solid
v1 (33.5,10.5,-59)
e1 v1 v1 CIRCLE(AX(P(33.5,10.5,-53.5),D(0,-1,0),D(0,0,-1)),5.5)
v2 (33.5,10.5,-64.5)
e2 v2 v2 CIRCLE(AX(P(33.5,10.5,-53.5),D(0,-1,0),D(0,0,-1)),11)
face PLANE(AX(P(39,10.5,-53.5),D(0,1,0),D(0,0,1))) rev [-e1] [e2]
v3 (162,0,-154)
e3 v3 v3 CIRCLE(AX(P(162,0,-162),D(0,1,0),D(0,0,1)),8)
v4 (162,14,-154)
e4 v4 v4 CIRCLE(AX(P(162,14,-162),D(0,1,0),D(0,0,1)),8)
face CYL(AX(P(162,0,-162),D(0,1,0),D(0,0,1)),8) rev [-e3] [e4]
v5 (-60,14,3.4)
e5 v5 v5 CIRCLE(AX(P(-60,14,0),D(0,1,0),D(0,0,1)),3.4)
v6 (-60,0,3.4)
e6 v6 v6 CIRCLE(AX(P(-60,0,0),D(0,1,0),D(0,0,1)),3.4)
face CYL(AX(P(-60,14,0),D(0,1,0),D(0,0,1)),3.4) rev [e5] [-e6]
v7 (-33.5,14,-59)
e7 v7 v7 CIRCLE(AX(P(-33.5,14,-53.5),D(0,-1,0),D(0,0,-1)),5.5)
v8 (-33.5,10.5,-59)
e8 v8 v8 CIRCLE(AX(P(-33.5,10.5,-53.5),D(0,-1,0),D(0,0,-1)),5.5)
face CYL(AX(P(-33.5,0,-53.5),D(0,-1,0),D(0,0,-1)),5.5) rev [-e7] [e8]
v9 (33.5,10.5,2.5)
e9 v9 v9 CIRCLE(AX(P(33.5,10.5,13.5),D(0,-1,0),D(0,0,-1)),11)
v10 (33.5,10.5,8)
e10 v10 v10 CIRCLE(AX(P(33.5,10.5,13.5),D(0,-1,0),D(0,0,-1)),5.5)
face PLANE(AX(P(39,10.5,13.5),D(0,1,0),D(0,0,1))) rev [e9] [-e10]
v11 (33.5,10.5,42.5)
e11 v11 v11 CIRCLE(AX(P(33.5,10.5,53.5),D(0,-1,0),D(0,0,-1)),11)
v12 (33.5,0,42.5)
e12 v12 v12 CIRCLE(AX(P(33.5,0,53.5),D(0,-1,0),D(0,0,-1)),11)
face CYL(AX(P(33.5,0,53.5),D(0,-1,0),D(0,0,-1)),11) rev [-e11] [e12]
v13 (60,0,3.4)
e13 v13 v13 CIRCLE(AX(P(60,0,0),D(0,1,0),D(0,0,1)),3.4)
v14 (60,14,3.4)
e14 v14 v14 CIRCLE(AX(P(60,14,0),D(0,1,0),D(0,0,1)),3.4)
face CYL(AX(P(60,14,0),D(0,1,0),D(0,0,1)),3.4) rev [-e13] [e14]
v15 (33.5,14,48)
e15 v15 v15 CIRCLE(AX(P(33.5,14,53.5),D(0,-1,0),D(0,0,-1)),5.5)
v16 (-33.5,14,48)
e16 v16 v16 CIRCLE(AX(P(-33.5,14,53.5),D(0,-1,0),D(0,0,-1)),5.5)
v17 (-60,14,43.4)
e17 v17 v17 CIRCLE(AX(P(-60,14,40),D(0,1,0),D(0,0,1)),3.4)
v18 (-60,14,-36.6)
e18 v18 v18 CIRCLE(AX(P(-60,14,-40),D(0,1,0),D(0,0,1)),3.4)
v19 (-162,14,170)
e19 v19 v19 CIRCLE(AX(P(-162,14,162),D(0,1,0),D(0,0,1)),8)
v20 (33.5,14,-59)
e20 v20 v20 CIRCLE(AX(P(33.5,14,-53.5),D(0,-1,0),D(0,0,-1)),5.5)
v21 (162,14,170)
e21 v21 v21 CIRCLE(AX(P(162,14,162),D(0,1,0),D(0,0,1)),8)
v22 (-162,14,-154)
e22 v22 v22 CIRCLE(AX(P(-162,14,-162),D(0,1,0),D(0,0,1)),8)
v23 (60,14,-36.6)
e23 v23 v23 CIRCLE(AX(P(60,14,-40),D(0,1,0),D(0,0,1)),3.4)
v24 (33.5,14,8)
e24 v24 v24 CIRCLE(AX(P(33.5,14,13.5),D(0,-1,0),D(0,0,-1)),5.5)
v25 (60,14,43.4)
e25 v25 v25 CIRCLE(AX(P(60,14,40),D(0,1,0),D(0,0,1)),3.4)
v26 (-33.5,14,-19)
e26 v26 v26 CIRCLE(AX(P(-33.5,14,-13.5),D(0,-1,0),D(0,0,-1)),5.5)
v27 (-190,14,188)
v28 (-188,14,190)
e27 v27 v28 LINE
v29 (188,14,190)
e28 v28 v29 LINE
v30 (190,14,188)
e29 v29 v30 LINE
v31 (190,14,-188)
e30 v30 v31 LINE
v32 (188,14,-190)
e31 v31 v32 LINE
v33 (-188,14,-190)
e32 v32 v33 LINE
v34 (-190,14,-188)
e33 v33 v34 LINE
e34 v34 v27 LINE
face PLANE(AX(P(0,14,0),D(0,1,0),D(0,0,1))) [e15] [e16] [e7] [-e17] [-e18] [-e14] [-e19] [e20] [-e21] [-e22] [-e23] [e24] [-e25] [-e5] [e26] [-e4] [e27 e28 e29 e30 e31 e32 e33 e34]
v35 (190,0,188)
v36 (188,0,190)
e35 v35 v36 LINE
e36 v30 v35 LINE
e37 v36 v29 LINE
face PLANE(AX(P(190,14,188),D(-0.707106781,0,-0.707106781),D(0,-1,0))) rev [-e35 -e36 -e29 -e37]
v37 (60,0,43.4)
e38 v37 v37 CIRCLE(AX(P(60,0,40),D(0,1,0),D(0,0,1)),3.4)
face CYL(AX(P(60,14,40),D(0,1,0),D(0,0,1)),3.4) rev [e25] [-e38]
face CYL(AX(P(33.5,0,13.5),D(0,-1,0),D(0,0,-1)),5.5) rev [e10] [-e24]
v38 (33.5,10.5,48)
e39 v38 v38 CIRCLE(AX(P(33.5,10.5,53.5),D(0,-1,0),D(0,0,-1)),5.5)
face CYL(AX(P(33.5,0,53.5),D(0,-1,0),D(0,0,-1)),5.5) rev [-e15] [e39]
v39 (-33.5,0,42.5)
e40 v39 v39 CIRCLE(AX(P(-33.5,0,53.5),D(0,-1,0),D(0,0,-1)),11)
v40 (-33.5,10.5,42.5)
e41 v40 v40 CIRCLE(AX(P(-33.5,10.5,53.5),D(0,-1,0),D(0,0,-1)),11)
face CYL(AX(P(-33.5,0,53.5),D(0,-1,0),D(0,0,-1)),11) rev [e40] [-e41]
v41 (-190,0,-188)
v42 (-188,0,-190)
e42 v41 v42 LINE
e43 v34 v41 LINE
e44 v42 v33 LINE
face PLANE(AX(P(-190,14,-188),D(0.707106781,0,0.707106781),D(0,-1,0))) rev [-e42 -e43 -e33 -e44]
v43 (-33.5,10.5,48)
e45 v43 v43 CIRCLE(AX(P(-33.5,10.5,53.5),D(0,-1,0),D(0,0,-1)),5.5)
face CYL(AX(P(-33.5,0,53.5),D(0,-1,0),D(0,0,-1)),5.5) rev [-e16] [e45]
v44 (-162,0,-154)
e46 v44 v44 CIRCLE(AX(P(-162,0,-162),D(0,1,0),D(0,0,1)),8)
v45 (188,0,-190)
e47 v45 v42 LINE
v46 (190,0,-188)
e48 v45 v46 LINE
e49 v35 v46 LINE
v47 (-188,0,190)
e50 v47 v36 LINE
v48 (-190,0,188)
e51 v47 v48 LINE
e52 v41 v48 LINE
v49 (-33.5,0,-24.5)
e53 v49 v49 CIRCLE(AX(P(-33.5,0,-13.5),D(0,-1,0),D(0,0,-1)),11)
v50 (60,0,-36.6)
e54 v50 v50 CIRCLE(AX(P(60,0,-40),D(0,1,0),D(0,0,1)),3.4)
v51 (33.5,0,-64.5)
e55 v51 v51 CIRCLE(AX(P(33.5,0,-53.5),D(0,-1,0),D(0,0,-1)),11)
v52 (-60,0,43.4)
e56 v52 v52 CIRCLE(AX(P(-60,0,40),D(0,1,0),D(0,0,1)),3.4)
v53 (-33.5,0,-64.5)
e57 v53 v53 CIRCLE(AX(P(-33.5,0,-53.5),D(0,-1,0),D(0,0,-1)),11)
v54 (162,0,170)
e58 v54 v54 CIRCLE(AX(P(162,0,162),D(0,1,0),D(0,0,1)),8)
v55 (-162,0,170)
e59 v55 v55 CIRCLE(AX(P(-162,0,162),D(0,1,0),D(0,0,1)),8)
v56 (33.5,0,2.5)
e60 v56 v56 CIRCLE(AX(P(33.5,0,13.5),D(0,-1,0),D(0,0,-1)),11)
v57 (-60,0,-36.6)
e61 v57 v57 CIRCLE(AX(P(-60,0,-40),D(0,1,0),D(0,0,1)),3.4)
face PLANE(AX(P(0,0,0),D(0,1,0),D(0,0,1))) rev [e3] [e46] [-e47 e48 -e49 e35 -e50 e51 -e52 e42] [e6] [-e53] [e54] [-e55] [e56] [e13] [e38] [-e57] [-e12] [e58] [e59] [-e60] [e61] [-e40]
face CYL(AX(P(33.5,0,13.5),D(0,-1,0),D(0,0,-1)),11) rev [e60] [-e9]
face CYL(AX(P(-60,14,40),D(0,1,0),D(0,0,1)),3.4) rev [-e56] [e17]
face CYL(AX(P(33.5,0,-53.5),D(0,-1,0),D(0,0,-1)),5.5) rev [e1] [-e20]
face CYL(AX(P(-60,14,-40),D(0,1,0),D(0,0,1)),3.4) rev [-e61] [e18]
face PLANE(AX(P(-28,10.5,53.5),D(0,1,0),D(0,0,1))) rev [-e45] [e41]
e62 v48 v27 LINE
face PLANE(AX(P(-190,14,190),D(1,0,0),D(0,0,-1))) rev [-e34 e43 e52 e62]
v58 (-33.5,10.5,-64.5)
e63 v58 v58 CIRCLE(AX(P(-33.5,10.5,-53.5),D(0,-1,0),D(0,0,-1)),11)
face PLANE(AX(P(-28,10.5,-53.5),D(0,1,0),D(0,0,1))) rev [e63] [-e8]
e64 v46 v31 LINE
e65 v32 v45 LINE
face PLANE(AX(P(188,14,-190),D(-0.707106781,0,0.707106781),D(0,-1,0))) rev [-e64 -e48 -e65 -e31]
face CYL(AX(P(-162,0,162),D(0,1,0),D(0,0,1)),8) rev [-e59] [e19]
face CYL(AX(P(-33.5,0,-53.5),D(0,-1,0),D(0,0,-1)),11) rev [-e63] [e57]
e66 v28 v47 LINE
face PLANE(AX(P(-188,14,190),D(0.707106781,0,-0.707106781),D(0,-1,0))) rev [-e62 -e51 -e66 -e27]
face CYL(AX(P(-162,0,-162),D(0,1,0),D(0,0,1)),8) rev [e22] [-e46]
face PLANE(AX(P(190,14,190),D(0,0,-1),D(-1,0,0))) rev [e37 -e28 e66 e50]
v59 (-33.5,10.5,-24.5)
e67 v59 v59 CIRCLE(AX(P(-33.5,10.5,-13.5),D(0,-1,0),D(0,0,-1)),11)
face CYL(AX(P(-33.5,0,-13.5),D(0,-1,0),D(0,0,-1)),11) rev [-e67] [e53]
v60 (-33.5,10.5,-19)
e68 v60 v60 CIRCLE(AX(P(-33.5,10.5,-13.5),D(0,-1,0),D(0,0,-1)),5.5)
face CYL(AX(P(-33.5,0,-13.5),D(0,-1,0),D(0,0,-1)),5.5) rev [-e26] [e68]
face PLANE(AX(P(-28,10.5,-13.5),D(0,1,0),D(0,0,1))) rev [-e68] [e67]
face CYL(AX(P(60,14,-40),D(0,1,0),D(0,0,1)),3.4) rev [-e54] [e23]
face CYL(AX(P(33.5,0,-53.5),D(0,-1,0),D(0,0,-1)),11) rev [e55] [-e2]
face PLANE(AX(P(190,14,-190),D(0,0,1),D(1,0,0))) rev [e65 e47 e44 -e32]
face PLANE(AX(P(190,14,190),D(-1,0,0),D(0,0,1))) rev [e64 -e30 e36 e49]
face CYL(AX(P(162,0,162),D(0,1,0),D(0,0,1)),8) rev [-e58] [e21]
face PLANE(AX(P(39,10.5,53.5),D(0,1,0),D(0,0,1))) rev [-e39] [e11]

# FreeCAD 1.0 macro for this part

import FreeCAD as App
import Part
import Sketcher


def edges_at(feature, points):
    """Names of the edges that pass closest to the given points."""
    edges = feature.Shape.Edges
    near = lambda p: min(range(len(edges)), key=lambda i: edges[i].distToShape(Part.Vertex(*p))[0])
    return sorted({f"Edge{near(p) + 1}" for p in points})


def add_polygon(sketch, points):
    """Adds a closed chain of lines whose ends are joined by coincident constraints."""
    first, n = sketch.GeometryCount, len(points)
    for a, b in zip(points, points[1:] + points[:1]):
        sketch.addGeometry(Part.LineSegment(App.Vector(*a, 0), App.Vector(*b, 0)), False)
    for i in range(n):
        sketch.addConstraint(Sketcher.Constraint("Coincident", first + i, 2, first + (i + 1) % n, 1))

doc = App.newDocument("Part")
body = doc.addObject("PartDesign::Body", "Body")

# Sketch on XZ plane
sketch1 = doc.addObject("Sketcher::SketchObject", "Sketch")
body.addObject(sketch1)
sketch1.AttachmentSupport = (doc.XZ_Plane, [""])
sketch1.MapMode = "FlatFace"
add_polygon(sketch1, [(-190, -190), (-190, 190), (190, 190), (190, -190)])  # lines 0-3
sketch1.addConstraint([
    Sketcher.Constraint("Vertical", 0),
    Sketcher.Constraint("Horizontal", 1),
    Sketcher.Constraint("Vertical", 2),
    Sketcher.Constraint("Horizontal", 3),
    Sketcher.Constraint("Symmetric", 0, 2, 2, 2, -1, 1),
    Sketcher.Constraint("Equal", 3, 0),
    Sketcher.Constraint("DistanceX", 1, 1, 1, 2, 380.0),
])
pad1 = doc.addObject("PartDesign::Pad", "Pad")
body.addObject(pad1)
pad1.Profile = sketch1
pad1.Length = 14
pad1.Reversed = True
doc.recompute()

chamfer = doc.addObject("PartDesign::Chamfer", "Chamfer")
body.addObject(chamfer)
chamfer.Base = (pad1, edges_at(pad1, [
    (-190, 7, -190),
    (190, 7, -190),
    (190, 7, 190),
    (-190, 7, 190),
]))
chamfer.Size = 2

# Sketch on XZ plane
sketch2 = doc.addObject("Sketcher::SketchObject", "Sketch001")
body.addObject(sketch2)
sketch2.AttachmentSupport = (doc.XZ_Plane, [""])
sketch2.MapMode = "FlatFace"
sketch2.AttachmentOffset = App.Placement(App.Vector(0, 0, -14), App.Rotation())
sketch2.addGeometry([
    Part.Circle(App.Vector(60, -40, 0), App.Vector(0, 0, 1), 3.4),
    Part.Circle(App.Vector(60, 0, 0), App.Vector(0, 0, 1), 3.4),
    Part.Circle(App.Vector(60, 40, 0), App.Vector(0, 0, 1), 3.4),
], False)
sketch2.addConstraint([
    Sketcher.Constraint("Equal", 0, 1),
    Sketcher.Constraint("Equal", 1, 2),
    Sketcher.Constraint("Symmetric", 0, 3, 2, 3, -1),
    Sketcher.Constraint("PointOnObject", 1, 3, -1),
    Sketcher.Constraint("Vertical", 0, 3, 1, 3),
    Sketcher.Constraint("Diameter", 0, 6.8),
    Sketcher.Constraint("DistanceX", -1, 1, 0, 3, 60.0),
    Sketcher.Constraint("DistanceY", 0, 3, -1, 1, 40.0),
])
doc.recompute()
hole = doc.addObject("PartDesign::Hole", "Hole")
body.addObject(hole)
hole.Profile = sketch2
hole.ThreadType = "None"
hole.Diameter = 6.8
hole.DepthType = "ThroughAll"
hole.Reversed = True
doc.recompute()

mirrored = doc.addObject("PartDesign::Mirrored", "Mirrored")
body.addObject(mirrored)
mirrored.Originals = [hole]
mirrored.MirrorPlane = (doc.YZ_Plane, [""])
body.Tip = mirrored

# Sketch on XZ plane
sketch3 = doc.addObject("Sketcher::SketchObject", "Sketch002")
body.addObject(sketch3)
sketch3.AttachmentSupport = (doc.XZ_Plane, [""])
sketch3.MapMode = "FlatFace"
sketch3.addGeometry([
    Part.Circle(App.Vector(-34, -54, 0), App.Vector(0, 0, 1), 6),  # 0
    Part.Circle(App.Vector(34, 14, 0), App.Vector(0, 0, 1), 6),  # 1
    Part.Circle(App.Vector(-34, 54, 0), App.Vector(0, 0, 1), 6),  # 2
    Part.Circle(App.Vector(34, -54, 0), App.Vector(0, 0, 1), 6),  # 3
    Part.Circle(App.Vector(34, 54, 0), App.Vector(0, 0, 1), 6),  # 4
    Part.Circle(App.Vector(-34, -14, 0), App.Vector(0, 0, 1), 6),  # 5
], False)
sketch3.addConstraint([
    Sketcher.Constraint("Equal", 0, 1),
    Sketcher.Constraint("Equal", 1, 2),
    Sketcher.Constraint("Equal", 2, 3),
    Sketcher.Constraint("Equal", 3, 4),
    Sketcher.Constraint("Equal", 4, 5),
    Sketcher.Constraint("Symmetric", 2, 3, 3, 3, -1, 1),
    Sketcher.Constraint("Symmetric", 0, 3, 4, 3, -1, 1),
    Sketcher.Constraint("Symmetric", 1, 3, 5, 3, -1, 1),
    Sketcher.Constraint("Symmetric", 0, 3, 3, 3, -2),
    Sketcher.Constraint("Vertical", 1, 3, 3, 3),
    Sketcher.Constraint("Diameter", 0, 11.0),
    Sketcher.Constraint("DistanceX", 0, 3, 1, 3, 67.0),
    Sketcher.Constraint("DistanceY", 0, 3, 1, 3, 67.0),
    Sketcher.Constraint("DistanceY", 1, 3, 2, 3, 40.0),
])
doc.recompute()
hole2 = doc.addObject("PartDesign::Hole", "Hole001")
body.addObject(hole2)
hole2.Profile = sketch3
hole2.ThreadType = "None"
hole2.Diameter = 11
hole2.DepthType = "ThroughAll"
hole2.HoleCutType = "Counterbore"
hole2.HoleCutDiameter = 22
hole2.HoleCutDepth = 10.5

# Sketch on XZ plane
sketch4 = doc.addObject("Sketcher::SketchObject", "Sketch003")
body.addObject(sketch4)
sketch4.AttachmentSupport = (doc.XZ_Plane, [""])
sketch4.MapMode = "FlatFace"
sketch4.AttachmentOffset = App.Placement(App.Vector(0, 0, -14), App.Rotation())
sketch4.addGeometry([
    Part.Circle(App.Vector(-162, -162, 0), App.Vector(0, 0, 1), 8),
    Part.Circle(App.Vector(162, -162, 0), App.Vector(0, 0, 1), 8),
    Part.Circle(App.Vector(-162, 162, 0), App.Vector(0, 0, 1), 8),
    Part.Circle(App.Vector(162, 162, 0), App.Vector(0, 0, 1), 8),
], False)
sketch4.addConstraint([
    Sketcher.Constraint("Equal", 0, 1),
    Sketcher.Constraint("Equal", 1, 2),
    Sketcher.Constraint("Equal", 2, 3),
    Sketcher.Constraint("Symmetric", 1, 3, 2, 3, -1, 1),
    Sketcher.Constraint("Symmetric", 0, 3, 3, 3, -1, 1),
    Sketcher.Constraint("Symmetric", 0, 3, 1, 3, -2),
    Sketcher.Constraint("Diameter", 0, 16.0),
    Sketcher.Constraint("DistanceX", 0, 3, -1, 1, 162.0),
    Sketcher.Constraint("DistanceY", 0, 3, -1, 1, 162.0),
])
pocket1 = doc.addObject("PartDesign::Pocket", "Pocket")
body.addObject(pocket1)
pocket1.Profile = sketch4
pocket1.Type = "ThroughAll"
pocket1.Reversed = True

doc.recompute()
